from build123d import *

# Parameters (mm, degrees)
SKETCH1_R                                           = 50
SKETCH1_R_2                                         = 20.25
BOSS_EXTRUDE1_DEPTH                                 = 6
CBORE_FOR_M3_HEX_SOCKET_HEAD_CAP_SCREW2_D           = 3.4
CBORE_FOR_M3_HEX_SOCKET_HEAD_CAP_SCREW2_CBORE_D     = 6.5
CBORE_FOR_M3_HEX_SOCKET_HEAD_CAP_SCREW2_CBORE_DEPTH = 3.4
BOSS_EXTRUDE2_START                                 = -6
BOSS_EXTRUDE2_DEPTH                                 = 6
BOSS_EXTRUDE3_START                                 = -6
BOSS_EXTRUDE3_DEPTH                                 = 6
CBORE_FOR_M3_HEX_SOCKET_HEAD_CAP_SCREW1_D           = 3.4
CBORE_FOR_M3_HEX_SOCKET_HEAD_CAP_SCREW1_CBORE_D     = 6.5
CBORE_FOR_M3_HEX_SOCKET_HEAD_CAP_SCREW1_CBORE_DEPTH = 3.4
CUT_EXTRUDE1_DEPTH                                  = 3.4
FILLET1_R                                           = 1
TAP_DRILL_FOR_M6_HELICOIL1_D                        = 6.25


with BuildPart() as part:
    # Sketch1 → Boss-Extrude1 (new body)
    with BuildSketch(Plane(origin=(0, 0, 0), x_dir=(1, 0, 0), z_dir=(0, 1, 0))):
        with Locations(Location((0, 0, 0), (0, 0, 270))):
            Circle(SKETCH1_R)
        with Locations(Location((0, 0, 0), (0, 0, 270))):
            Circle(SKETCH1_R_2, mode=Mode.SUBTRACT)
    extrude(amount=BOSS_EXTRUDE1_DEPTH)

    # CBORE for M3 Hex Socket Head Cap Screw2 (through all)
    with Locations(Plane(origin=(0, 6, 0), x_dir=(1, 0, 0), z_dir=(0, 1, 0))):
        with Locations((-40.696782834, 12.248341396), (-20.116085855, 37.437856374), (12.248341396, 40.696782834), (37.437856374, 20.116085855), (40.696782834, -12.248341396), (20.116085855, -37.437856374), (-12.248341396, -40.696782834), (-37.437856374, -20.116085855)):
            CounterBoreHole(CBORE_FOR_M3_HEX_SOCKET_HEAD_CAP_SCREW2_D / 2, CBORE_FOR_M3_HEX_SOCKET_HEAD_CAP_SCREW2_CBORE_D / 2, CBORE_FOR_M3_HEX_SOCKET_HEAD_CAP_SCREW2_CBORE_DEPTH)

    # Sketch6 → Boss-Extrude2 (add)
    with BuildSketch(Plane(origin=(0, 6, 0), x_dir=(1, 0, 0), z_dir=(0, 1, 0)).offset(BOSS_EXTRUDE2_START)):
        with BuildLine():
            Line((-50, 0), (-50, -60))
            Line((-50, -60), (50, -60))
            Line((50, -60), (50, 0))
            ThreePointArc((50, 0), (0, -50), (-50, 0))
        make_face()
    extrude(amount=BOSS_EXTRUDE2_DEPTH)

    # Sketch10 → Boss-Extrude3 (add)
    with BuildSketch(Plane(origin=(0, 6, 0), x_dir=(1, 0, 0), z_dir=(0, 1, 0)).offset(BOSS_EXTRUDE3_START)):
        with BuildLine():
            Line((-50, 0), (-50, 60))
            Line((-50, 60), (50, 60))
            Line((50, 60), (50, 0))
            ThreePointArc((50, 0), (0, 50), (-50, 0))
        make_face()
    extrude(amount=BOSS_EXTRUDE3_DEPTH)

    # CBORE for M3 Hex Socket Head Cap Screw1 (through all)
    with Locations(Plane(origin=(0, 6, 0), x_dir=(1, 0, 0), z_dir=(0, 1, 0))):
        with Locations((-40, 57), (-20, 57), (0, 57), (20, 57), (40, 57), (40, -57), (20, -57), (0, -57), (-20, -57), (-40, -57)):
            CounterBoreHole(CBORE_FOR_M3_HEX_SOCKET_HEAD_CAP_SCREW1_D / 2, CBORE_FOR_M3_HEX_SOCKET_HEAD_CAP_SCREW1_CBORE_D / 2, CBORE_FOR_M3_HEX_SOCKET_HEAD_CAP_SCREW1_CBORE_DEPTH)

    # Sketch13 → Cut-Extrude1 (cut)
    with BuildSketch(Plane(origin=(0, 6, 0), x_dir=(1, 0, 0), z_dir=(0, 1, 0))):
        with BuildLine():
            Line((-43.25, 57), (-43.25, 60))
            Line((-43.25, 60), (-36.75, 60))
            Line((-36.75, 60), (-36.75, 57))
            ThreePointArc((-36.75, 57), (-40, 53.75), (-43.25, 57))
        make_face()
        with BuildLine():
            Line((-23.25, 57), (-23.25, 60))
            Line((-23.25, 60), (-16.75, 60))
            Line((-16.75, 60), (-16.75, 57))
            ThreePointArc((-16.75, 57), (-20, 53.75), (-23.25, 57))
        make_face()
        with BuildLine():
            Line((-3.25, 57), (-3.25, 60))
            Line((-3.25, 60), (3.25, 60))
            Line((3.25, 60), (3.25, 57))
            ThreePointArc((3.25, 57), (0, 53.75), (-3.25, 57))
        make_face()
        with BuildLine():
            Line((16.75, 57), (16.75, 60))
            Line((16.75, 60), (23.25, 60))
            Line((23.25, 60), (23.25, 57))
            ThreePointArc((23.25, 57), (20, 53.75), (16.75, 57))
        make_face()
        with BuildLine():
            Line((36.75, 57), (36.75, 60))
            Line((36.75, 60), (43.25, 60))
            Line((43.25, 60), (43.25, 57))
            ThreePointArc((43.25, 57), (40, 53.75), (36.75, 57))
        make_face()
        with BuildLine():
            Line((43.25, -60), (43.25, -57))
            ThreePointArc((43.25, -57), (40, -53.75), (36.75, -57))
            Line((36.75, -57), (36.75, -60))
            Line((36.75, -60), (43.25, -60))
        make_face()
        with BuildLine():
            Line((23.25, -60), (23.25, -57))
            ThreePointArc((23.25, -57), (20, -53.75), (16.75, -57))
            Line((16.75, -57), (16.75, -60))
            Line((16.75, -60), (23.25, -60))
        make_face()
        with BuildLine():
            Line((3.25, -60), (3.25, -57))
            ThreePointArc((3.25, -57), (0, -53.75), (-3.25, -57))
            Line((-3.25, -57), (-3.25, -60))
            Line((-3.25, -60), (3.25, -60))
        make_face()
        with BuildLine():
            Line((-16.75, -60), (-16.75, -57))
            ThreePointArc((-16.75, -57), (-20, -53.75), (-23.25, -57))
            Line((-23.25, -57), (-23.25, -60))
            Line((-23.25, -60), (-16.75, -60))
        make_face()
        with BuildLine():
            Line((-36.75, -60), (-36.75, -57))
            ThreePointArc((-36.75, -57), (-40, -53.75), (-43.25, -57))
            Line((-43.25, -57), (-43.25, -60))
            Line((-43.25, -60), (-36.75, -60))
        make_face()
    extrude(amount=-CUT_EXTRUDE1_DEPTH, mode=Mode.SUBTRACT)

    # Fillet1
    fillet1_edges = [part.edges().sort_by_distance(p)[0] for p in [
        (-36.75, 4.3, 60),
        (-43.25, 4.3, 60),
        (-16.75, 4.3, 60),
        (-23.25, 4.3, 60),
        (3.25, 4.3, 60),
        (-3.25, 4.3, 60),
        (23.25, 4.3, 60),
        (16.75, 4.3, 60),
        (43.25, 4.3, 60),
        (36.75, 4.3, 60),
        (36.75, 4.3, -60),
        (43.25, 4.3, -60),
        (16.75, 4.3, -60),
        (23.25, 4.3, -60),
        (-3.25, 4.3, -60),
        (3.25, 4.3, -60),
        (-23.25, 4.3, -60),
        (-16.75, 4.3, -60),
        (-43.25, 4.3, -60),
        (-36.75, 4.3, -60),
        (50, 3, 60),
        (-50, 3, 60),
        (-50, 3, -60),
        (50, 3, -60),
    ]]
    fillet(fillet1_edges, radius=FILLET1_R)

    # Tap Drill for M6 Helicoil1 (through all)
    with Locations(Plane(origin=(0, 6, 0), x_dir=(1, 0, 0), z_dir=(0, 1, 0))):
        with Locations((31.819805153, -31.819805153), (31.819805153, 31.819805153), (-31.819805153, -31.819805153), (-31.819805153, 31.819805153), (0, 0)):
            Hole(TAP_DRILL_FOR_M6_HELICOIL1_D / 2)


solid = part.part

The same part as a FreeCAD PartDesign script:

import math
import FreeCAD as App
import Part
import Sketcher
Q = App.Units.Quantity


def edges_at(feature, points):
    """Names of the edges that pass closest to the given points."""
    edges = feature.Shape.Edges
    near = lambda p: min(range(len(edges)), key=lambda i: edges[i].distToShape(Part.Vertex(*p))[0])
    return sorted({f"Edge{near(p) + 1}" for p in points})

doc = App.newDocument("Part")
body = doc.addObject("PartDesign::Body", "Body")

sketch1 = doc.addObject("Sketcher::SketchObject", "Sketch")
body.addObject(sketch1)
sketch1.AttachmentSupport = (doc.XZ_Plane, [""])
sketch1.MapMode = "FlatFace"
sketch1.addGeometry(Part.Circle(App.Vector(0, 0, 0), App.Vector(0, 0, 1), 50), False)
sketch1.addGeometry(Part.Circle(App.Vector(0, 0, 0), App.Vector(0, 0, 1), 20), False)
sketch1.addConstraint(Sketcher.Constraint("Coincident", 0, 3, -1, 1))
sketch1.addConstraint(Sketcher.Constraint("Coincident", 1, 3, -1, 1))
sketch1.addConstraint(Sketcher.Constraint("Diameter", 0, Q("100 mm")))
sketch1.addConstraint(Sketcher.Constraint("Diameter", 1, Q("40.5 mm")))
pad1 = doc.addObject("PartDesign::Pad", "Pad")
body.addObject(pad1)
pad1.Profile = sketch1
pad1.Length = 6
pad1.Reversed = True

sketch2 = doc.addObject("Sketcher::SketchObject", "Sketch001")
body.addObject(sketch2)
sketch2.AttachmentSupport = (doc.XZ_Plane, [""])
sketch2.MapMode = "FlatFace"
sketch2.AttachmentOffset = App.Placement(App.Vector(0, 0, -6), App.Rotation())
sketch2.addGeometry(Part.Circle(App.Vector(-40.7, -12.2, 0), App.Vector(0, 0, 1), 1.7), False)
sketch2.addGeometry(Part.Circle(App.Vector(-20.1, -37.4, 0), App.Vector(0, 0, 1), 1.7), False)
sketch2.addGeometry(Part.Circle(App.Vector(12.2, -40.7, 0), App.Vector(0, 0, 1), 1.7), False)
sketch2.addGeometry(Part.Circle(App.Vector(37.4, -20.1, 0), App.Vector(0, 0, 1), 1.7), False)
sketch2.addGeometry(Part.Circle(App.Vector(40.7, 12.2, 0), App.Vector(0, 0, 1), 1.7), False)
sketch2.addGeometry(Part.Circle(App.Vector(20.1, 37.4, 0), App.Vector(0, 0, 1), 1.7), False)
sketch2.addGeometry(Part.Circle(App.Vector(-12.2, 40.7, 0), App.Vector(0, 0, 1), 1.7), False)
sketch2.addGeometry(Part.Circle(App.Vector(-37.4, 20.1, 0), App.Vector(0, 0, 1), 1.7), False)
sketch2.addConstraint(Sketcher.Constraint("Equal", 0, 1))
sketch2.addConstraint(Sketcher.Constraint("Equal", 1, 2))
sketch2.addConstraint(Sketcher.Constraint("Equal", 2, 3))
sketch2.addConstraint(Sketcher.Constraint("Equal", 3, 4))
sketch2.addConstraint(Sketcher.Constraint("Equal", 4, 5))
sketch2.addConstraint(Sketcher.Constraint("Equal", 5, 6))
sketch2.addConstraint(Sketcher.Constraint("Equal", 6, 7))
sketch2.addConstraint(Sketcher.Constraint("Symmetric", 0, 3, 4, 3, -1, 1))
sketch2.addConstraint(Sketcher.Constraint("Symmetric", 1, 3, 5, 3, -1, 1))
sketch2.addConstraint(Sketcher.Constraint("Symmetric", 2, 3, 6, 3, -1, 1))
sketch2.addConstraint(Sketcher.Constraint("Symmetric", 3, 3, 7, 3, -1, 1))
sketch2.addConstraint(Sketcher.Constraint("Diameter", 0, Q("3.4 mm")))
sketch2.addConstraint(Sketcher.Constraint("DistanceY", 0, 3, -1, 1, Q("12.248341 mm")))
sketch2.addConstraint(Sketcher.Constraint("DistanceX", -1, 1, 2, 3, Q("12.248341 mm")))
sketch2.addConstraint(Sketcher.Constraint("DistanceY", 2, 3, 0, 3, Q("28.448441 mm")))
sketch2.addConstraint(Sketcher.Constraint("DistanceY", 1, 3, 3, 3, Q("17.321771 mm")))
sketch2.addConstraint(Sketcher.Constraint("DistanceX", 0, 3, 3, 3, Q("78.134639 mm")))
sketch2.addConstraint(Sketcher.Constraint("DistanceX", 2, 3, 4, 3, Q("28.448441 mm")))
sketch2.addConstraint(Sketcher.Constraint("DistanceX", 1, 3, 4, 3, Q("60.812869 mm")))
sketch2.addConstraint(Sketcher.Constraint("DistanceY", 2, 3, 5, 3, Q("78.134639 mm")))
doc.recompute()
hole = doc.addObject("PartDesign::Hole", "Hole")
body.addObject(hole)
hole.Profile = sketch2
hole.ThreadType = "None"
hole.Diameter = 3.4
hole.DepthType = "ThroughAll"
hole.HoleCutType = "Counterbore"
hole.HoleCutDiameter = 6.5
hole.HoleCutDepth = 3.4
hole.Reversed = True

sketch3 = doc.addObject("Sketcher::SketchObject", "Sketch002")
body.addObject(sketch3)
sketch3.AttachmentSupport = (doc.XZ_Plane, [""])
sketch3.MapMode = "FlatFace"
sketch3.addGeometry(Part.LineSegment(App.Vector(-50, 0, 0), App.Vector(-50, 60, 0)), False)
sketch3.addGeometry(Part.LineSegment(App.Vector(-50, 60, 0), App.Vector(50, 60, 0)), False)
sketch3.addGeometry(Part.LineSegment(App.Vector(50, 60, 0), App.Vector(50, 0, 0)), False)
sketch3.addGeometry(Part.ArcOfCircle(Part.Circle(App.Vector(0, 0, 0), App.Vector(0, 0, 1), 50), math.radians(0), math.radians(180)), False)
sketch3.addConstraint(Sketcher.Constraint("Coincident", 0, 2, 1, 1))
sketch3.addConstraint(Sketcher.Constraint("Coincident", 1, 2, 2, 1))
sketch3.addConstraint(Sketcher.Constraint("Tangent", 2, 2, 3, 1))
sketch3.addConstraint(Sketcher.Constraint("Tangent", 3, 2, 0, 1))
sketch3.addConstraint(Sketcher.Constraint("Vertical", 0))
sketch3.addConstraint(Sketcher.Constraint("Horizontal", 1))
sketch3.addConstraint(Sketcher.Constraint("Vertical", 2))
sketch3.addConstraint(Sketcher.Constraint("Coincident", 3, 3, -1, 1))
sketch3.addConstraint(Sketcher.Constraint("Radius", 3, Q("50 mm")))
sketch3.addConstraint(Sketcher.Constraint("DistanceY", 0, 1, 0, 2, Q("60 mm")))
pad2 = doc.addObject("PartDesign::Pad", "Pad001")
body.addObject(pad2)
pad2.Profile = sketch3
pad2.Length = 6
pad2.Reversed = True

sketch4 = doc.addObject("Sketcher::SketchObject", "Sketch003")
body.addObject(sketch4)
sketch4.AttachmentSupport = (doc.XZ_Plane, [""])
sketch4.MapMode = "FlatFace"
sketch4.addGeometry(Part.LineSegment(App.Vector(-50, -60, 0), App.Vector(-50, 0, 0)), False)
sketch4.addGeometry(Part.ArcOfCircle(Part.Circle(App.Vector(0, 0, 0), App.Vector(0, 0, 1), 50), math.radians(180), math.radians(360)), False)
sketch4.addGeometry(Part.LineSegment(App.Vector(50, 0, 0), App.Vector(50, -60, 0)), False)
sketch4.addGeometry(Part.LineSegment(App.Vector(50, -60, 0), App.Vector(-50, -60, 0)), False)
sketch4.addConstraint(Sketcher.Constraint("Tangent", 0, 2, 1, 1))
sketch4.addConstraint(Sketcher.Constraint("Tangent", 1, 2, 2, 1))
sketch4.addConstraint(Sketcher.Constraint("Coincident", 2, 2, 3, 1))
sketch4.addConstraint(Sketcher.Constraint("Coincident", 3, 2, 0, 1))
sketch4.addConstraint(Sketcher.Constraint("Vertical", 0))
sketch4.addConstraint(Sketcher.Constraint("Vertical", 2))
sketch4.addConstraint(Sketcher.Constraint("Horizontal", 3))
sketch4.addConstraint(Sketcher.Constraint("Coincident", 1, 3, -1, 1))
sketch4.addConstraint(Sketcher.Constraint("Radius", 1, Q("50 mm")))
sketch4.addConstraint(Sketcher.Constraint("DistanceY", 0, 1, 0, 2, Q("60 mm")))
pad3 = doc.addObject("PartDesign::Pad", "Pad002")
body.addObject(pad3)
pad3.Profile = sketch4
pad3.Length = 6
pad3.Reversed = True

sketch5 = doc.addObject("Sketcher::SketchObject", "Sketch004")
body.addObject(sketch5)
sketch5.AttachmentSupport = (doc.XZ_Plane, [""])
sketch5.MapMode = "FlatFace"
sketch5.AttachmentOffset = App.Placement(App.Vector(0, 0, -6), App.Rotation())
sketch5.addGeometry(Part.Circle(App.Vector(-40, -57, 0), App.Vector(0, 0, 1), 1.7), False)
sketch5.addGeometry(Part.Circle(App.Vector(-20, -57, 0), App.Vector(0, 0, 1), 1.7), False)
sketch5.addGeometry(Part.Circle(App.Vector(0, -57, 0), App.Vector(0, 0, 1), 1.7), False)
sketch5.addGeometry(Part.Circle(App.Vector(20, -57, 0), App.Vector(0, 0, 1), 1.7), False)
sketch5.addGeometry(Part.Circle(App.Vector(40, -57, 0), App.Vector(0, 0, 1), 1.7), False)
sketch5.addGeometry(Part.Circle(App.Vector(40, 57, 0), App.Vector(0, 0, 1), 1.7), False)
sketch5.addGeometry(Part.Circle(App.Vector(20, 57, 0), App.Vector(0, 0, 1), 1.7), False)
sketch5.addGeometry(Part.Circle(App.Vector(0, 57, 0), App.Vector(0, 0, 1), 1.7), False)
sketch5.addGeometry(Part.Circle(App.Vector(-20, 57, 0), App.Vector(0, 0, 1), 1.7), False)
sketch5.addGeometry(Part.Circle(App.Vector(-40, 57, 0), App.Vector(0, 0, 1), 1.7), False)
sketch5.addConstraint(Sketcher.Constraint("Equal", 0, 1))
sketch5.addConstraint(Sketcher.Constraint("Equal", 1, 2))
sketch5.addConstraint(Sketcher.Constraint("Equal", 2, 3))
sketch5.addConstraint(Sketcher.Constraint("Equal", 3, 4))
sketch5.addConstraint(Sketcher.Constraint("Equal", 4, 5))
sketch5.addConstraint(Sketcher.Constraint("Equal", 5, 6))
sketch5.addConstraint(Sketcher.Constraint("Equal", 6, 7))
sketch5.addConstraint(Sketcher.Constraint("Equal", 7, 8))
sketch5.addConstraint(Sketcher.Constraint("Equal", 8, 9))
sketch5.addConstraint(Sketcher.Constraint("Symmetric", 0, 3, 5, 3, -1, 1))
sketch5.addConstraint(Sketcher.Constraint("Symmetric", 1, 3, 6, 3, -1, 1))
sketch5.addConstraint(Sketcher.Constraint("Symmetric", 2, 3, 7, 3, -1, 1))
sketch5.addConstraint(Sketcher.Constraint("Symmetric", 3, 3, 8, 3, -1, 1))
sketch5.addConstraint(Sketcher.Constraint("Symmetric", 4, 3, 9, 3, -1, 1))
sketch5.addConstraint(Sketcher.Constraint("Symmetric", 1, 3, 3, 3, -2))
sketch5.addConstraint(Sketcher.Constraint("Symmetric", 0, 3, 4, 3, -2))
sketch5.addConstraint(Sketcher.Constraint("PointOnObject", 2, 3, -2))
sketch5.addConstraint(Sketcher.Constraint("Horizontal", 0, 3, 1, 3))
sketch5.addConstraint(Sketcher.Constraint("Horizontal", 1, 3, 2, 3))
sketch5.addConstraint(Sketcher.Constraint("Diameter", 0, Q("3.4 mm")))
sketch5.addConstraint(Sketcher.Constraint("DistanceX", 0, 3, -1, 1, Q("40 mm")))
sketch5.addConstraint(Sketcher.Constraint("DistanceY", 0, 3, -1, 1, Q("57 mm")))
sketch5.addConstraint(Sketcher.Constraint("DistanceX", 1, 3, -1, 1, Q("20 mm")))
doc.recompute()
hole2 = doc.addObject("PartDesign::Hole", "Hole001")
body.addObject(hole2)
hole2.Profile = sketch5
hole2.ThreadType = "None"
hole2.Diameter = 3.4
hole2.DepthType = "ThroughAll"
hole2.HoleCutType = "Counterbore"
hole2.HoleCutDiameter = 6.5
hole2.HoleCutDepth = 3.4
hole2.Reversed = True

sketch6 = doc.addObject("Sketcher::SketchObject", "Sketch005")
body.addObject(sketch6)
sketch6.AttachmentSupport = (doc.XZ_Plane, [""])
sketch6.MapMode = "FlatFace"
sketch6.AttachmentOffset = App.Placement(App.Vector(0, 0, -6), App.Rotation())
sketch6.addGeometry(Part.LineSegment(App.Vector(-43.2, -60, 0), App.Vector(-43.2, -57, 0)), False)
sketch6.addGeometry(Part.ArcOfCircle(Part.Circle(App.Vector(-40, -57, 0), App.Vector(0, 0, 1), 3.2), math.radians(0), math.radians(180)), False)
sketch6.addGeometry(Part.LineSegment(App.Vector(-36.8, -57, 0), App.Vector(-36.8, -60, 0)), False)
sketch6.addGeometry(Part.LineSegment(App.Vector(-36.8, -60, 0), App.Vector(-43.2, -60, 0)), False)
sketch6.addGeometry(Part.LineSegment(App.Vector(-23.2, -60, 0), App.Vector(-23.2, -57, 0)), False)
sketch6.addGeometry(Part.ArcOfCircle(Part.Circle(App.Vector(-20, -57, 0), App.Vector(0, 0, 1), 3.2), math.radians(0), math.radians(180)), False)
sketch6.addGeometry(Part.LineSegment(App.Vector(-16.8, -57, 0), App.Vector(-16.8, -60, 0)), False)
sketch6.addGeometry(Part.LineSegment(App.Vector(-16.8, -60, 0), App.Vector(-23.2, -60, 0)), False)
sketch6.addGeometry(Part.LineSegment(App.Vector(-3.2, -60, 0), App.Vector(-3.2, -57, 0)), False)
sketch6.addGeometry(Part.ArcOfCircle(Part.Circle(App.Vector(0, -57, 0), App.Vector(0, 0, 1), 3.2), math.radians(0), math.radians(180)), False)
sketch6.addGeometry(Part.LineSegment(App.Vector(3.2, -57, 0), App.Vector(3.2, -60, 0)), False)
sketch6.addGeometry(Part.LineSegment(App.Vector(3.2, -60, 0), App.Vector(-3.2, -60, 0)), False)
sketch6.addGeometry(Part.LineSegment(App.Vector(16.8, -60, 0), App.Vector(16.8, -57, 0)), False)
sketch6.addGeometry(Part.ArcOfCircle(Part.Circle(App.Vector(20, -57, 0), App.Vector(0, 0, 1), 3.2), math.radians(0), math.radians(180)), False)
sketch6.addGeometry(Part.LineSegment(App.Vector(23.2, -57, 0), App.Vector(23.2, -60, 0)), False)
sketch6.addGeometry(Part.LineSegment(App.Vector(23.2, -60, 0), App.Vector(16.8, -60, 0)), False)
sketch6.addGeometry(Part.LineSegment(App.Vector(36.8, -60, 0), App.Vector(36.8, -57, 0)), False)
sketch6.addGeometry(Part.ArcOfCircle(Part.Circle(App.Vector(40, -57, 0), App.Vector(0, 0, 1), 3.2), math.radians(0), math.radians(180)), False)
sketch6.addGeometry(Part.LineSegment(App.Vector(43.2, -57, 0), App.Vector(43.2, -60, 0)), False)
sketch6.addGeometry(Part.LineSegment(App.Vector(43.2, -60, 0), App.Vector(36.8, -60, 0)), False)
sketch6.addGeometry(Part.LineSegment(App.Vector(43.2, 60, 0), App.Vector(43.2, 57, 0)), False)
sketch6.addGeometry(Part.ArcOfCircle(Part.Circle(App.Vector(40, 57, 0), App.Vector(0, 0, 1), 3.2), math.radians(180), math.radians(360)), False)
sketch6.addGeometry(Part.LineSegment(App.Vector(36.8, 57, 0), App.Vector(36.8, 60, 0)), False)
sketch6.addGeometry(Part.LineSegment(App.Vector(36.8, 60, 0), App.Vector(43.2, 60, 0)), False)
sketch6.addGeometry(Part.LineSegment(App.Vector(23.2, 60, 0), App.Vector(23.2, 57, 0)), False)
sketch6.addGeometry(Part.ArcOfCircle(Part.Circle(App.Vector(20, 57, 0), App.Vector(0, 0, 1), 3.2), math.radians(180), math.radians(360)), False)
sketch6.addGeometry(Part.LineSegment(App.Vector(16.8, 57, 0), App.Vector(16.8, 60, 0)), False)
sketch6.addGeometry(Part.LineSegment(App.Vector(16.8, 60, 0), App.Vector(23.2, 60, 0)), False)
sketch6.addGeometry(Part.LineSegment(App.Vector(3.2, 60, 0), App.Vector(3.2, 57, 0)), False)
sketch6.addGeometry(Part.ArcOfCircle(Part.Circle(App.Vector(0, 57, 0), App.Vector(0, 0, 1), 3.2), math.radians(180), math.radians(360)), False)
sketch6.addGeometry(Part.LineSegment(App.Vector(-3.2, 57, 0), App.Vector(-3.2, 60, 0)), False)
sketch6.addGeometry(Part.LineSegment(App.Vector(-3.2, 60, 0), App.Vector(3.2, 60, 0)), False)
sketch6.addGeometry(Part.LineSegment(App.Vector(-16.8, 60, 0), App.Vector(-16.8, 57, 0)), False)
sketch6.addGeometry(Part.ArcOfCircle(Part.Circle(App.Vector(-20, 57, 0), App.Vector(0, 0, 1), 3.2), math.radians(180), math.radians(360)), False)
sketch6.addGeometry(Part.LineSegment(App.Vector(-23.2, 57, 0), App.Vector(-23.2, 60, 0)), False)
sketch6.addGeometry(Part.LineSegment(App.Vector(-23.2, 60, 0), App.Vector(-16.8, 60, 0)), False)
sketch6.addGeometry(Part.LineSegment(App.Vector(-36.8, 60, 0), App.Vector(-36.8, 57, 0)), False)
sketch6.addGeometry(Part.ArcOfCircle(Part.Circle(App.Vector(-40, 57, 0), App.Vector(0, 0, 1), 3.2), math.radians(180), math.radians(360)), False)
sketch6.addGeometry(Part.LineSegment(App.Vector(-43.2, 57, 0), App.Vector(-43.2, 60, 0)), False)
sketch6.addGeometry(Part.LineSegment(App.Vector(-43.2, 60, 0), App.Vector(-36.8, 60, 0)), False)
sketch6.addConstraint(Sketcher.Constraint("Tangent", 0, 2, 1, 2))
sketch6.addConstraint(Sketcher.Constraint("Tangent", 1, 1, 2, 1))
sketch6.addConstraint(Sketcher.Constraint("Coincident", 2, 2, 3, 1))
sketch6.addConstraint(Sketcher.Constraint("Coincident", 3, 2, 0, 1))
sketch6.addConstraint(Sketcher.Constraint("Tangent", 4, 2, 5, 2))
sketch6.addConstraint(Sketcher.Constraint("Tangent", 5, 1, 6, 1))
sketch6.addConstraint(Sketcher.Constraint("Coincident", 6, 2, 7, 1))
sketch6.addConstraint(Sketcher.Constraint("Coincident", 7, 2, 4, 1))
sketch6.addConstraint(Sketcher.Constraint("Tangent", 8, 2, 9, 2))
sketch6.addConstraint(Sketcher.Constraint("Tangent", 9, 1, 10, 1))
sketch6.addConstraint(Sketcher.Constraint("Coincident", 10, 2, 11, 1))
sketch6.addConstraint(Sketcher.Constraint("Coincident", 11, 2, 8, 1))
sketch6.addConstraint(Sketcher.Constraint("Tangent", 12, 2, 13, 2))
sketch6.addConstraint(Sketcher.Constraint("Tangent", 13, 1, 14, 1))
sketch6.addConstraint(Sketcher.Constraint("Coincident", 14, 2, 15, 1))
sketch6.addConstraint(Sketcher.Constraint("Coincident", 15, 2, 12, 1))
sketch6.addConstraint(Sketcher.Constraint("Tangent", 16, 2, 17, 2))
sketch6.addConstraint(Sketcher.Constraint("Tangent", 17, 1, 18, 1))
sketch6.addConstraint(Sketcher.Constraint("Coincident", 18, 2, 19, 1))
sketch6.addConstraint(Sketcher.Constraint("Coincident", 19, 2, 16, 1))
sketch6.addConstraint(Sketcher.Constraint("Tangent", 20, 2, 21, 2))
sketch6.addConstraint(Sketcher.Constraint("Tangent", 21, 1, 22, 1))
sketch6.addConstraint(Sketcher.Constraint("Coincident", 22, 2, 23, 1))
sketch6.addConstraint(Sketcher.Constraint("Coincident", 23, 2, 20, 1))
sketch6.addConstraint(Sketcher.Constraint("Tangent", 24, 2, 25, 2))
sketch6.addConstraint(Sketcher.Constraint("Tangent", 25, 1, 26, 1))
sketch6.addConstraint(Sketcher.Constraint("Coincident", 26, 2, 27, 1))
sketch6.addConstraint(Sketcher.Constraint("Coincident", 27, 2, 24, 1))
sketch6.addConstraint(Sketcher.Constraint("Tangent", 28, 2, 29, 2))
sketch6.addConstraint(Sketcher.Constraint("Tangent", 29, 1, 30, 1))
sketch6.addConstraint(Sketcher.Constraint("Coincident", 30, 2, 31, 1))
sketch6.addConstraint(Sketcher.Constraint("Coincident", 31, 2, 28, 1))
sketch6.addConstraint(Sketcher.Constraint("Tangent", 32, 2, 33, 2))
sketch6.addConstraint(Sketcher.Constraint("Tangent", 33, 1, 34, 1))
sketch6.addConstraint(Sketcher.Constraint("Coincident", 34, 2, 35, 1))
sketch6.addConstraint(Sketcher.Constraint("Coincident", 35, 2, 32, 1))
sketch6.addConstraint(Sketcher.Constraint("Tangent", 36, 2, 37, 2))
sketch6.addConstraint(Sketcher.Constraint("Tangent", 37, 1, 38, 1))
sketch6.addConstraint(Sketcher.Constraint("Coincident", 38, 2, 39, 1))
sketch6.addConstraint(Sketcher.Constraint("Coincident", 39, 2, 36, 1))
sketch6.addConstraint(Sketcher.Constraint("Vertical", 0))
sketch6.addConstraint(Sketcher.Constraint("Vertical", 2))
sketch6.addConstraint(Sketcher.Constraint("Horizontal", 3))
sketch6.addConstraint(Sketcher.Constraint("Vertical", 4))
sketch6.addConstraint(Sketcher.Constraint("Vertical", 6))
sketch6.addConstraint(Sketcher.Constraint("Horizontal", 7))
sketch6.addConstraint(Sketcher.Constraint("Vertical", 8))
sketch6.addConstraint(Sketcher.Constraint("Vertical", 10))
sketch6.addConstraint(Sketcher.Constraint("Horizontal", 11))
sketch6.addConstraint(Sketcher.Constraint("Vertical", 12))
sketch6.addConstraint(Sketcher.Constraint("Vertical", 14))
sketch6.addConstraint(Sketcher.Constraint("Horizontal", 15))
sketch6.addConstraint(Sketcher.Constraint("Vertical", 16))
sketch6.addConstraint(Sketcher.Constraint("Vertical", 18))
sketch6.addConstraint(Sketcher.Constraint("Horizontal", 19))
sketch6.addConstraint(Sketcher.Constraint("Vertical", 20))
sketch6.addConstraint(Sketcher.Constraint("Vertical", 22))
sketch6.addConstraint(Sketcher.Constraint("Horizontal", 23))
sketch6.addConstraint(Sketcher.Constraint("Vertical", 24))
sketch6.addConstraint(Sketcher.Constraint("Vertical", 26))
sketch6.addConstraint(Sketcher.Constraint("Horizontal", 27))
sketch6.addConstraint(Sketcher.Constraint("Vertical", 28))
sketch6.addConstraint(Sketcher.Constraint("Vertical", 30))
sketch6.addConstraint(Sketcher.Constraint("Horizontal", 31))
sketch6.addConstraint(Sketcher.Constraint("Vertical", 32))
sketch6.addConstraint(Sketcher.Constraint("Vertical", 34))
sketch6.addConstraint(Sketcher.Constraint("Horizontal", 35))
sketch6.addConstraint(Sketcher.Constraint("Vertical", 36))
sketch6.addConstraint(Sketcher.Constraint("Vertical", 38))
sketch6.addConstraint(Sketcher.Constraint("Horizontal", 39))
sketch6.addConstraint(Sketcher.Constraint("Equal", 1, 5))
sketch6.addConstraint(Sketcher.Constraint("Equal", 5, 9))
sketch6.addConstraint(Sketcher.Constraint("Equal", 9, 13))
sketch6.addConstraint(Sketcher.Constraint("Equal", 13, 17))
sketch6.addConstraint(Sketcher.Constraint("Equal", 17, 21))
sketch6.addConstraint(Sketcher.Constraint("Equal", 21, 25))
sketch6.addConstraint(Sketcher.Constraint("Equal", 25, 29))
sketch6.addConstraint(Sketcher.Constraint("Equal", 29, 33))
sketch6.addConstraint(Sketcher.Constraint("Equal", 33, 37))
sketch6.addConstraint(Sketcher.Constraint("Symmetric", 1, 3, 21, 3, -1, 1))
sketch6.addConstraint(Sketcher.Constraint("Symmetric", 5, 3, 25, 3, -1, 1))
sketch6.addConstraint(Sketcher.Constraint("Symmetric", 9, 3, 29, 3, -1, 1))
sketch6.addConstraint(Sketcher.Constraint("Symmetric", 13, 3, 33, 3, -1, 1))
sketch6.addConstraint(Sketcher.Constraint("Symmetric", 17, 3, 37, 3, -1, 1))
sketch6.addConstraint(Sketcher.Constraint("Symmetric", 5, 3, 13, 3, -2))
sketch6.addConstraint(Sketcher.Constraint("Symmetric", 1, 3, 17, 3, -2))
sketch6.addConstraint(Sketcher.Constraint("Symmetric", 11, 2, 30, 2, -1))
sketch6.addConstraint(Sketcher.Constraint("Horizontal", 1, 3, 5, 3))
sketch6.addConstraint(Sketcher.Constraint("Horizontal", 5, 3, 9, 3))
sketch6.addConstraint(Sketcher.Constraint("Horizontal", 3, 2, 6, 2))
sketch6.addConstraint(Sketcher.Constraint("Horizontal", 7, 2, 10, 2))
sketch6.addConstraint(Sketcher.Constraint("Horizontal", 11, 2, 14, 2))
sketch6.addConstraint(Sketcher.Constraint("Horizontal", 15, 2, 18, 2))
sketch6.addConstraint(Sketcher.Constraint("Horizontal", 23, 2, 26, 2))
sketch6.addConstraint(Sketcher.Constraint("Horizontal", 27, 2, 30, 2))
sketch6.addConstraint(Sketcher.Constraint("Horizontal", 31, 2, 34, 2))
sketch6.addConstraint(Sketcher.Constraint("Horizontal", 35, 2, 38, 2))
sketch6.addConstraint(Sketcher.Constraint("DistanceY", 0, 1, 0, 2, Q("3 mm")))
sketch6.addConstraint(Sketcher.Constraint("Radius", 1, Q("3.25 mm")))
sketch6.addConstraint(Sketcher.Constraint("DistanceX", 1, 3, -1, 1, Q("40 mm")))
sketch6.addConstraint(Sketcher.Constraint("DistanceY", 1, 3, -1, 1, Q("57 mm")))
sketch6.addConstraint(Sketcher.Constraint("DistanceX", 5, 3, -1, 1, Q("20 mm")))
pocket1 = doc.addObject("PartDesign::Pocket", "Pocket")
body.addObject(pocket1)
pocket1.Profile = sketch6
pocket1.Length = 3.4
pocket1.Reversed = True
doc.recompute()

fillet = doc.addObject("PartDesign::Fillet", "Fillet")
body.addObject(fillet)
fillet.Base = (pocket1, edges_at(pocket1, [
    (-36.75, 4.3, 60),
    (-43.25, 4.3, 60),
    (-16.75, 4.3, 60),
    (-23.25, 4.3, 60),
    (3.25, 4.3, 60),
    (-3.25, 4.3, 60),
    (23.25, 4.3, 60),
    (16.75, 4.3, 60),
    (43.25, 4.3, 60),
    (36.75, 4.3, 60),
    (36.75, 4.3, -60),
    (43.25, 4.3, -60),
    (16.75, 4.3, -60),
    (23.25, 4.3, -60),
    (-3.25, 4.3, -60),
    (3.25, 4.3, -60),
    (-23.25, 4.3, -60),
    (-16.75, 4.3, -60),
    (-43.25, 4.3, -60),
    (-36.75, 4.3, -60),
    (50, 3, 60),
    (-50, 3, 60),
    (-50, 3, -60),
    (50, 3, -60),
]))
fillet.Radius = 1

sketch7 = doc.addObject("Sketcher::SketchObject", "Sketch006")
body.addObject(sketch7)
sketch7.AttachmentSupport = (doc.XZ_Plane, [""])
sketch7.MapMode = "FlatFace"
sketch7.AttachmentOffset = App.Placement(App.Vector(0, 0, -6), App.Rotation())
sketch7.addGeometry(Part.Circle(App.Vector(31.8, 31.8, 0), App.Vector(0, 0, 1), 3.1), False)
sketch7.addGeometry(Part.Circle(App.Vector(31.8, -31.8, 0), App.Vector(0, 0, 1), 3.1), False)
sketch7.addGeometry(Part.Circle(App.Vector(-31.8, 31.8, 0), App.Vector(0, 0, 1), 3.1), False)
sketch7.addGeometry(Part.Circle(App.Vector(-31.8, -31.8, 0), App.Vector(0, 0, 1), 3.1), False)
sketch7.addGeometry(Part.Circle(App.Vector(0, 0, 0), App.Vector(0, 0, 1), 3.1), False)
sketch7.addConstraint(Sketcher.Constraint("Coincident", 4, 3, -1, 1))
sketch7.addConstraint(Sketcher.Constraint("Equal", 0, 1))
sketch7.addConstraint(Sketcher.Constraint("Equal", 1, 2))
sketch7.addConstraint(Sketcher.Constraint("Equal", 2, 3))
sketch7.addConstraint(Sketcher.Constraint("Equal", 3, 4))
sketch7.addConstraint(Sketcher.Constraint("Symmetric", 1, 3, 2, 3, -1, 1))
sketch7.addConstraint(Sketcher.Constraint("Symmetric", 0, 3, 3, 3, -1, 1))
sketch7.addConstraint(Sketcher.Constraint("Symmetric", 0, 3, 2, 3, -2))
sketch7.addConstraint(Sketcher.Constraint("Diameter", 0, Q("6.25 mm")))
sketch7.addConstraint(Sketcher.Constraint("DistanceY", 1, 3, 0, 3, Q("63.63961 mm")))
sketch7.addConstraint(Sketcher.Constraint("DistanceX", 2, 3, 0, 3, Q("63.63961 mm")))
doc.recompute()
hole3 = doc.addObject("PartDesign::Hole", "Hole002")
body.addObject(hole3)
hole3.Profile = sketch7
hole3.ThreadType = "None"
hole3.Diameter = 6.25
hole3.DepthType = "ThroughAll"
hole3.Reversed = True

doc.recompute()
